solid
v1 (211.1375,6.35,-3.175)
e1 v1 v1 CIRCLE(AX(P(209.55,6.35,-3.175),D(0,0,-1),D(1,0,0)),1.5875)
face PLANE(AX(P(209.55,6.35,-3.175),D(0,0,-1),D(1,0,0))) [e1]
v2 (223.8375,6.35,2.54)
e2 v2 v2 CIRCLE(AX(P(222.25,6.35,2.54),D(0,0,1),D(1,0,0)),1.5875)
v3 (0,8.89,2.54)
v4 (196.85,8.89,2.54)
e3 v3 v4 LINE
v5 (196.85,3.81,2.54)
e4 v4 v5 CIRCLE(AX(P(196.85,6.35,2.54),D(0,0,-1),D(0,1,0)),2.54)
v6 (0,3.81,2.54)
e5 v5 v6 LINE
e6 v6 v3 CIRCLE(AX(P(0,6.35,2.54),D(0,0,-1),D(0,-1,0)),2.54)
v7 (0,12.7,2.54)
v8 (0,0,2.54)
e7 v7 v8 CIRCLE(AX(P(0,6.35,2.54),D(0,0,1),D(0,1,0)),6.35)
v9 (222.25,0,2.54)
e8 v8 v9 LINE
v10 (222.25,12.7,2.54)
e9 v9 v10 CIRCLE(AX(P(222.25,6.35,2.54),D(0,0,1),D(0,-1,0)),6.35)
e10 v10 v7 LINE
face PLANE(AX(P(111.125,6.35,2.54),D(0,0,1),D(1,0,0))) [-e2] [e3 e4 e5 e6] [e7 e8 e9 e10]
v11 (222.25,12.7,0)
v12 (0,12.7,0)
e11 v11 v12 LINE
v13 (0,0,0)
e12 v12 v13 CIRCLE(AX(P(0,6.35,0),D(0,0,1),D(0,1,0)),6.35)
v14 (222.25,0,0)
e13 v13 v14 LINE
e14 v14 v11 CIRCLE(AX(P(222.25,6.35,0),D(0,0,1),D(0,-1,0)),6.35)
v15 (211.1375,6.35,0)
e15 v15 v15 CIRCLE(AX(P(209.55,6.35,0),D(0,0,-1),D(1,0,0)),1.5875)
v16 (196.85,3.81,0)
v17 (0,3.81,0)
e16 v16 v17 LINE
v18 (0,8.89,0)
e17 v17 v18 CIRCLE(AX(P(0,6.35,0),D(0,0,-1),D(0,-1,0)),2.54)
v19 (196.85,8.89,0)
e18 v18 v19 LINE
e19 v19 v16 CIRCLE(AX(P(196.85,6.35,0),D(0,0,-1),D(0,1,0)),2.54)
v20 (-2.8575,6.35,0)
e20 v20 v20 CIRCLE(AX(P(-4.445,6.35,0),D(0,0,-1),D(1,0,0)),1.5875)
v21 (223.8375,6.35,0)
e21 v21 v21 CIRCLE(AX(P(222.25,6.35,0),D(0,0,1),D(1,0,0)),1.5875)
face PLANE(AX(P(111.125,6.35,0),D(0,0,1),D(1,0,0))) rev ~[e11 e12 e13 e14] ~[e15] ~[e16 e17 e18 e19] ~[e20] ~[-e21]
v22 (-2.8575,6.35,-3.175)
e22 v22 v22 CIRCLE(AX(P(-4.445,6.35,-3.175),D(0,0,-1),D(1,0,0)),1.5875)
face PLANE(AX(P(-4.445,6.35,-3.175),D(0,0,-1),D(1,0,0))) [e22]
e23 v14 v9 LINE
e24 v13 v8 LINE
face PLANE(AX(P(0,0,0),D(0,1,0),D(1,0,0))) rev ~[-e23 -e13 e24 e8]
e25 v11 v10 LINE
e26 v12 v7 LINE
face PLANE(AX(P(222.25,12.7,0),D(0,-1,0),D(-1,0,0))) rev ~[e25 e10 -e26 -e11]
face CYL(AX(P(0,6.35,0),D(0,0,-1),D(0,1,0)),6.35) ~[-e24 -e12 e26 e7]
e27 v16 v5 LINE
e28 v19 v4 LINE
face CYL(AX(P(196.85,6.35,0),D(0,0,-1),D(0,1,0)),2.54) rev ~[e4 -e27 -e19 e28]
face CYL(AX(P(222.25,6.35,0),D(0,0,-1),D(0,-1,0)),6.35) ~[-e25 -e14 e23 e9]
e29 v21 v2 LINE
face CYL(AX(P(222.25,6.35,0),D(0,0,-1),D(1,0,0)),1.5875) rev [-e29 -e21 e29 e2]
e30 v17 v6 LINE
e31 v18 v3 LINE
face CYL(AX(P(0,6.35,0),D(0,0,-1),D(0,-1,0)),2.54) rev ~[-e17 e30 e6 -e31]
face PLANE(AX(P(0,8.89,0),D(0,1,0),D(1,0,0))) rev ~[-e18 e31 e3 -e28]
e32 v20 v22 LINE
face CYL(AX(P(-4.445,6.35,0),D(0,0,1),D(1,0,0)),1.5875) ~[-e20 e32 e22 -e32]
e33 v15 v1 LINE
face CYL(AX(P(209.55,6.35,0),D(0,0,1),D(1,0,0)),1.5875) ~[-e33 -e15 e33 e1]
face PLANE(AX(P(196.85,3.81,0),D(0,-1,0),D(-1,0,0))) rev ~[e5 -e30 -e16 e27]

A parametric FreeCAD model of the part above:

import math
import FreeCAD as App
import Part
import Sketcher

V = App.Vector
Q = App.Units.Quantity

doc = App.newDocument("Part")
params = doc.addObject("Spreadsheet::Sheet", "Params")
for row, (alias, value) in enumerate([
    ("sketch1_radius", "0.1 in"),
    ("sketch1_radius2", "0.25 in"),
    ("sketch1_diameter", "0.125 in"),
    ("sketch1_width", "8.75 in"),
    ("pad1_length", "0.1 in"),
    ("sketch2_diameter", "0.125 in"),
    ("pad2_length", "0.125 in"),
], start=1):
    params.set(f"A{row}", alias)
    params.set(f"B{row}", "=" + value)
    params.setAlias(f"B{row}", alias)

body = doc.addObject("PartDesign::Body", "Body")

# Sketch on XY plane
sketch1 = body.newObject("Sketcher::SketchObject", "Sketch")
sketch1.AttachmentSupport = (doc.getObject("XY_Plane"), [""])
sketch1.MapMode = "FlatFace"
sketch1.addGeometry([
    Part.ArcOfCircle(Part.Circle(V(0, 6.35, 0), V(0, 0, 1), 6.35), math.radians(90), math.radians(270)),  # 0
    Part.LineSegment(V(0, 0, 0), V(222.25, 0, 0)),  # 1
    Part.ArcOfCircle(Part.Circle(V(222.25, 6.35, 0), V(0, 0, 1), 6.35), math.radians(-90), math.radians(90)),  # 2
    Part.LineSegment(V(222.25, 12.7, 0), V(0, 12.7, 0)),  # 3
    Part.ArcOfCircle(Part.Circle(V(196.85, 6.35, 0), V(0, 0, 1), 2.54), math.radians(-90), math.radians(90)),  # 4
    Part.LineSegment(V(196.85, 3.81, 0), V(0, 3.81, 0)),  # 5
    Part.ArcOfCircle(Part.Circle(V(0, 6.35, 0), V(0, 0, 1), 2.54), math.radians(90), math.radians(270)),  # 6
    Part.LineSegment(V(0, 8.89, 0), V(196.85, 8.89, 0)),  # 7
    Part.Circle(V(222.25, 6.35, 0), V(0, 0, 1), 1.5875),  # 8
], False)
sketch1.addConstraint([
    Sketcher.Constraint("Tangent", 0, 2, 1, 1),
    Sketcher.Constraint("Tangent", 1, 2, 2, 1),
    Sketcher.Constraint("Tangent", 2, 2, 3, 1),
    Sketcher.Constraint("Tangent", 3, 2, 0, 1),
    Sketcher.Constraint("Tangent", 4, 1, 5, 1),
    Sketcher.Constraint("Tangent", 5, 2, 6, 2),
    Sketcher.Constraint("Tangent", 6, 1, 7, 1),
    Sketcher.Constraint("Tangent", 7, 2, 4, 2),
    Sketcher.Constraint("Horizontal", 1),
    Sketcher.Constraint("Horizontal", 3),
    Sketcher.Constraint("Horizontal", 5),
    Sketcher.Constraint("Horizontal", 7),
    Sketcher.Constraint("Coincident", 0, 2, -1, 1),
    Sketcher.Constraint("Coincident", 6, 3, 0, 3),
    Sketcher.Constraint("Coincident", 8, 3, 2, 3),
    Sketcher.Constraint("Radius", 4, Q("0.1 in")),
    Sketcher.Constraint("Radius", 0, Q("0.25 in")),
    Sketcher.Constraint("Diameter", 8, Q("0.125 in")),
    Sketcher.Constraint("DistanceX", 4, 3, 2, 3, Q("1 in")),
    Sketcher.Constraint("DistanceX", 1, 1, 1, 2, Q("8.75 in")),
])
sketch1.setExpression("Constraints[15]", "Params.sketch1_radius")
sketch1.setExpression("Constraints[16]", "Params.sketch1_radius2")
sketch1.setExpression("Constraints[17]", "Params.sketch1_diameter")
sketch1.setExpression("Constraints[19]", "Params.sketch1_width")
pad1 = body.newObject("PartDesign::Pad", "Pad")
pad1.Profile = sketch1
pad1.setExpression("Length", "Params.pad1_length")

# Sketch on XY plane
sketch2 = body.newObject("Sketcher::SketchObject", "Sketch001")
sketch2.AttachmentSupport = (doc.getObject("XY_Plane"), [""])
sketch2.MapMode = "FlatFace"
sketch2.addGeometry([
    Part.Circle(V(209.55, 6.35, 0), V(0, 0, 1), 1.5875),
    Part.Circle(V(-4.445, 6.35, 0), V(0, 0, 1), 1.5875),
], False)
sketch2.addConstraint([
    Sketcher.Constraint("Equal", 0, 1),
    Sketcher.Constraint("Horizontal", 0, 3, 1, 3),
    Sketcher.Constraint("Diameter", 0, Q("0.125 in")),
    Sketcher.Constraint("DistanceX", -1, 1, 0, 3, Q("8.25 in")),
    Sketcher.Constraint("DistanceY", -1, 1, 0, 3, Q("0.25 in")),
    Sketcher.Constraint("DistanceX", 1, 3, -1, 1, Q("0.175 in")),
])
sketch2.setExpression("Constraints[2]", "Params.sketch2_diameter")
pad2 = body.newObject("PartDesign::Pad", "Pad001")
pad2.Profile = sketch2
pad2.setExpression("Length", "Params.pad2_length")
pad2.Reversed = True

doc.recompute()
